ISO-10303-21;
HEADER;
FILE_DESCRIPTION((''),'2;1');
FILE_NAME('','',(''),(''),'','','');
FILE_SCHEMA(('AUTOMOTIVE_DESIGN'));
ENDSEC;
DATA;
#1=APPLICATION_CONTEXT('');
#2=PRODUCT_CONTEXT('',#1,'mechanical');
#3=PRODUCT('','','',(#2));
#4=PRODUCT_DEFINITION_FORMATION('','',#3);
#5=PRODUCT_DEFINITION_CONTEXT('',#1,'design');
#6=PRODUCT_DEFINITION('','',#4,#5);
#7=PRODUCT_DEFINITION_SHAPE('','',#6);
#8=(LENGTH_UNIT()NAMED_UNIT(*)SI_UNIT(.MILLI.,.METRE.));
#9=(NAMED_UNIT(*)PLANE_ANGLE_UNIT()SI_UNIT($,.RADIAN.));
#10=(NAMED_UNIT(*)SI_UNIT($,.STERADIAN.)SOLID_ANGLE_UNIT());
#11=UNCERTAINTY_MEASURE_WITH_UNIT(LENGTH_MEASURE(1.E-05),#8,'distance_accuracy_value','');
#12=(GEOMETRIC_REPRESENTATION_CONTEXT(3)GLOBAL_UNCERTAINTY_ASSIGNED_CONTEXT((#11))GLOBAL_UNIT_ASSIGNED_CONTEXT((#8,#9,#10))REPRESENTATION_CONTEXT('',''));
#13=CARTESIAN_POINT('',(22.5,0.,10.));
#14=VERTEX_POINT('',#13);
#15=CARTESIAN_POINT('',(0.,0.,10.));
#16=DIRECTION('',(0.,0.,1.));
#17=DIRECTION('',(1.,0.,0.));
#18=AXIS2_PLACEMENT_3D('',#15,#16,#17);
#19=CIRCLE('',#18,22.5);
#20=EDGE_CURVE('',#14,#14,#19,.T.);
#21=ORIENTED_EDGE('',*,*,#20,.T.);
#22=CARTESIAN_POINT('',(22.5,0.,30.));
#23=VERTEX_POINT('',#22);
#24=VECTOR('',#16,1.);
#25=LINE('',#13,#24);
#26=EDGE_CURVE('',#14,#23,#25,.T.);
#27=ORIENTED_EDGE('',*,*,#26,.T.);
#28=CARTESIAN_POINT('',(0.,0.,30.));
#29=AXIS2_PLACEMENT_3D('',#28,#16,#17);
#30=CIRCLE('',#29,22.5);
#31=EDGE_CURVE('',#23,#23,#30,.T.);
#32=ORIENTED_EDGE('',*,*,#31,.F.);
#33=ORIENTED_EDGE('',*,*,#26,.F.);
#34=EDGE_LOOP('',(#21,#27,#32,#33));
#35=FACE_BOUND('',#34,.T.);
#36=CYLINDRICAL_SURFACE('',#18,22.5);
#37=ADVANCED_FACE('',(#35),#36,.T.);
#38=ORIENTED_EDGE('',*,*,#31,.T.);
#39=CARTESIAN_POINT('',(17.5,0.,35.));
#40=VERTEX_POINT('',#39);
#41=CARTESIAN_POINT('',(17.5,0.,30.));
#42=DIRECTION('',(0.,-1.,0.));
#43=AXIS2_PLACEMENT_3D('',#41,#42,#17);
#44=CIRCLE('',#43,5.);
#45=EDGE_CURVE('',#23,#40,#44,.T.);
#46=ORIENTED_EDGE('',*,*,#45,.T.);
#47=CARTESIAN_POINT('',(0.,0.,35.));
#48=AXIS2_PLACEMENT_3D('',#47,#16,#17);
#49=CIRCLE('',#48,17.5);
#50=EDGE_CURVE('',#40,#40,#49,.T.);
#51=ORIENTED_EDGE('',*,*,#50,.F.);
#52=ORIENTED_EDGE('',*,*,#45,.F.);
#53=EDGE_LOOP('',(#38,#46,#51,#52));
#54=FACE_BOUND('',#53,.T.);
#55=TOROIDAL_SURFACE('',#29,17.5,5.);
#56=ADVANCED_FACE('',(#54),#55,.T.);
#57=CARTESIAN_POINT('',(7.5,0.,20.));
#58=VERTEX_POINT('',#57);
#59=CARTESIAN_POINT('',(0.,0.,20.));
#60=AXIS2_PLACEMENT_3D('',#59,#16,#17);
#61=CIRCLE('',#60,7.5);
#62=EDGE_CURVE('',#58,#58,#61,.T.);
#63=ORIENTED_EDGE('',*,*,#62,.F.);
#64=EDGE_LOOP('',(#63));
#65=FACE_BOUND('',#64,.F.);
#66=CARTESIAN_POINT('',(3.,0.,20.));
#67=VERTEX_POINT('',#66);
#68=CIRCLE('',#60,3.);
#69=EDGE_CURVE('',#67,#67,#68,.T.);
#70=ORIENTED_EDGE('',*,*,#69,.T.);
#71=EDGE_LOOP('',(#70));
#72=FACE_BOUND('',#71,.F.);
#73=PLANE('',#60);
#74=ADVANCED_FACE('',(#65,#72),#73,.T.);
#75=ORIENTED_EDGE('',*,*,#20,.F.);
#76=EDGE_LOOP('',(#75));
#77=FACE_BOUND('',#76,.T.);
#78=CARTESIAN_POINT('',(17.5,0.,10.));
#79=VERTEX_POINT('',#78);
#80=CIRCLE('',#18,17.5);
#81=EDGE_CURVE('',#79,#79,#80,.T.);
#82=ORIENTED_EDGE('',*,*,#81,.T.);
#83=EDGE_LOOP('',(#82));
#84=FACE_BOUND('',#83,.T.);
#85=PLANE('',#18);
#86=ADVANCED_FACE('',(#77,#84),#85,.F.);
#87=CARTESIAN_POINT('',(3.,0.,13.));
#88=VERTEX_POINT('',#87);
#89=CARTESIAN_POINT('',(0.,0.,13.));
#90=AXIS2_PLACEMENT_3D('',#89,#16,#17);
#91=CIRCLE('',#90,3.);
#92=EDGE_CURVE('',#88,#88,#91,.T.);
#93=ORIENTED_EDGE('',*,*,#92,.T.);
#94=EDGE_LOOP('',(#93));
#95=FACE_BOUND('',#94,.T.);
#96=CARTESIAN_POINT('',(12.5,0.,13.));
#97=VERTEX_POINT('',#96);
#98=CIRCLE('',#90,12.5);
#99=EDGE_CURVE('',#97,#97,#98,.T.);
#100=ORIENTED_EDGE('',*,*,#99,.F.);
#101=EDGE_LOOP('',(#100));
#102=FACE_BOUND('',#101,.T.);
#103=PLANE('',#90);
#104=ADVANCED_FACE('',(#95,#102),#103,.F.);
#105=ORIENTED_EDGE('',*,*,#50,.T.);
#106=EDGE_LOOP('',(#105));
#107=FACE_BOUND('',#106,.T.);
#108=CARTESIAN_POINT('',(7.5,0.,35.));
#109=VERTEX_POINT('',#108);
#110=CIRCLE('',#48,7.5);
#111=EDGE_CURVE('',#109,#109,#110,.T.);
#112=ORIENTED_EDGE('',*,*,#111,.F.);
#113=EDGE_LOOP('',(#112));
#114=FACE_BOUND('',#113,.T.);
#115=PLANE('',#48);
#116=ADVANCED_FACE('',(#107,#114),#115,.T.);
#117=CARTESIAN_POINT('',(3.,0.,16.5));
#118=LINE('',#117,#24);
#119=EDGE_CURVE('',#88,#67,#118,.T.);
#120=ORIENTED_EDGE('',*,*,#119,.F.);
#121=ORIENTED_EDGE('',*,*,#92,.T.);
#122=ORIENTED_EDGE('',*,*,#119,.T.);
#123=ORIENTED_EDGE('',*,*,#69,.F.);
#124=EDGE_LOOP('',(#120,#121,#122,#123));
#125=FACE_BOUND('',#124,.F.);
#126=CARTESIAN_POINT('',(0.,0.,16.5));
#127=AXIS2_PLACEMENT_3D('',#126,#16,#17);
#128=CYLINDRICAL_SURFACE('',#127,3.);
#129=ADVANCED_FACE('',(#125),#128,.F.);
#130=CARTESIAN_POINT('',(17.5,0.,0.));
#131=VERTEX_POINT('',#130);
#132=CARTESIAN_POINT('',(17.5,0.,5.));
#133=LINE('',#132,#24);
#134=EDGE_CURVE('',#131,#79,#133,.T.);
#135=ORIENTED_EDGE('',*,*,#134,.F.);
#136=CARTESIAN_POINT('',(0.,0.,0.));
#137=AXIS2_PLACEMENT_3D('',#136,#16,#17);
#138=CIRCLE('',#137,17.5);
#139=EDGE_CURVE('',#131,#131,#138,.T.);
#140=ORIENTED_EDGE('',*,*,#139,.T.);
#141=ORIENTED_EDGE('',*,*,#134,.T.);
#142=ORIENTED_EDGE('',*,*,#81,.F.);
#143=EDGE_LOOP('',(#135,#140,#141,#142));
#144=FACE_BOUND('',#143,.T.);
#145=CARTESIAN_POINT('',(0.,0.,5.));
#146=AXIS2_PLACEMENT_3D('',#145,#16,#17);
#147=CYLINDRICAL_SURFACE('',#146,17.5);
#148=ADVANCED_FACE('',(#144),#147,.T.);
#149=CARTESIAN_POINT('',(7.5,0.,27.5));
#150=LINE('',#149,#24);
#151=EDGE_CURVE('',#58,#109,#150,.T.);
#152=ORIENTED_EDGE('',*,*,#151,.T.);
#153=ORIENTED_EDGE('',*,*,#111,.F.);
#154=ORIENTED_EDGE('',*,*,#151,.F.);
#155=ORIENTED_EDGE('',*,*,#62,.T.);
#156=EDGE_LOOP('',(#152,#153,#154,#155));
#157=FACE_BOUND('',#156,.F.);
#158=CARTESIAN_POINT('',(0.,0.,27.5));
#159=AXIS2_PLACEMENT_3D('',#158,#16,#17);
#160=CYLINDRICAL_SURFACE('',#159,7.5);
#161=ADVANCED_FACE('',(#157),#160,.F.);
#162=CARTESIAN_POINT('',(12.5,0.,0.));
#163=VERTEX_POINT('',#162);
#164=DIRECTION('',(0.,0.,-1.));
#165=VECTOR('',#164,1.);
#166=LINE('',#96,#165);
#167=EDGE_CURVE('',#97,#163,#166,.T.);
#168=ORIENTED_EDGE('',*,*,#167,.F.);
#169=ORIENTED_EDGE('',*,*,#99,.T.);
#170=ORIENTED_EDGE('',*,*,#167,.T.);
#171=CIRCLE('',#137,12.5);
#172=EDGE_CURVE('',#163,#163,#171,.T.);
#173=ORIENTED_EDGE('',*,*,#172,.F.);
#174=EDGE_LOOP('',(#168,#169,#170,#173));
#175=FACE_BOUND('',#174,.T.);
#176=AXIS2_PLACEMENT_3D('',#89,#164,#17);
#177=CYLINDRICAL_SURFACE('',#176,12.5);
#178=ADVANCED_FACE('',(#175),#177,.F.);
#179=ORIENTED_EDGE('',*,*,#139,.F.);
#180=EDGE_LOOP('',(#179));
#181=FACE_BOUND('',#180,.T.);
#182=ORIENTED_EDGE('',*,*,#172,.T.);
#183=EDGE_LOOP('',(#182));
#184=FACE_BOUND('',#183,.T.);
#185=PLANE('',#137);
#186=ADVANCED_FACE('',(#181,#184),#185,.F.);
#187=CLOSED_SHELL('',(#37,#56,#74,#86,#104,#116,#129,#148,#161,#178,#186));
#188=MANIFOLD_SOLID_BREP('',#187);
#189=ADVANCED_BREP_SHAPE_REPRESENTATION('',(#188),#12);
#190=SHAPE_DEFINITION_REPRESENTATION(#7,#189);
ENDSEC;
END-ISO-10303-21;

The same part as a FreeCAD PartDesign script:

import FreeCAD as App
import Part
import Sketcher

V = App.Vector
Q = App.Units.Quantity


def edges_at(feature, points):
    """Names of the edges that pass closest to the given points."""
    edges = feature.Shape.Edges
    near = lambda p: min(range(len(edges)), key=lambda i: edges[i].distToShape(Part.Vertex(*p))[0])
    return sorted({f"Edge{near(p) + 1}" for p in points})


def add_polygon(sketch, points):
    """Adds a closed chain of lines whose ends are joined by coincident constraints."""
    first, n = sketch.GeometryCount, len(points)
    for a, b in zip(points, points[1:] + points[:1]):
        sketch.addGeometry(Part.LineSegment(App.Vector(*a, 0), App.Vector(*b, 0)), False)
    for i in range(n):
        sketch.addConstraint(Sketcher.Constraint("Coincident", first + i, 2, first + (i + 1) % n, 1))

doc = App.newDocument("Part")
body = doc.addObject("PartDesign::Body", "Body")

# Sketch on XZ plane
sketch1 = body.newObject("Sketcher::SketchObject", "Sketch")
sketch1.AttachmentSupport = (doc.getObject("XZ_Plane"), [""])
sketch1.MapMode = "FlatFace"
add_polygon(sketch1, [(3, 20), (3, 13), (12.5, 13), (12.5, 0), (17.5, 0), (17.5, 10), (22.5, 10), (22.5, 35), (7.5, 35), (7.5, 20)])  # lines 0-9
sketch1.addConstraint(Sketcher.Constraint("Vertical", 0))
sketch1.addConstraint(Sketcher.Constraint("Horizontal", 1))
sketch1.addConstraint(Sketcher.Constraint("Vertical", 2))
sketch1.addConstraint(Sketcher.Constraint("Horizontal", 3))
sketch1.addConstraint(Sketcher.Constraint("Vertical", 4))
sketch1.addConstraint(Sketcher.Constraint("Horizontal", 5))
sketch1.addConstraint(Sketcher.Constraint("Vertical", 6))
sketch1.addConstraint(Sketcher.Constraint("Horizontal", 7))
sketch1.addConstraint(Sketcher.Constraint("Vertical", 8))
sketch1.addConstraint(Sketcher.Constraint("Horizontal", 9))
sketch1.addConstraint(Sketcher.Constraint("PointOnObject", 2, 2, -1))
sketch1.addConstraint(Sketcher.Constraint("Equal", 3, 5))
sketch1.addConstraint(Sketcher.Constraint("Equal", 7, 8))
sketch1.addConstraint(Sketcher.Constraint("DistanceX", 3, 1, 3, 2, Q("5 mm")))
sketch1.addConstraint(Sketcher.Constraint("DistanceX", 7, 2, 7, 1, Q("15 mm")))
sketch1.addConstraint(Sketcher.Constraint("DistanceY", 0, 2, 0, 1, Q("7 mm")))
sketch1.addConstraint(Sketcher.Constraint("DistanceY", 2, 2, 2, 1, Q("13 mm")))
sketch1.addConstraint(Sketcher.Constraint("DistanceY", 4, 1, 4, 2, Q("10 mm")))
sketch1.addConstraint(Sketcher.Constraint("DistanceX", 1, 1, 1, 2, Q("9.5 mm")))
sketch1.addConstraint(Sketcher.Constraint("DistanceX", -1, 1, 0, 2, Q("3 mm")))
revolution = body.newObject("PartDesign::Revolution", "Revolution")
revolution.Profile = sketch1
revolution.ReferenceAxis = (sketch1, ["V_Axis"])
revolution.Angle = 360
doc.recompute()

fillet = body.newObject("PartDesign::Fillet", "Fillet")
fillet.Base = (revolution, edges_at(revolution, [(-22.5, 0, 35)]))
fillet.Radius = 5

doc.recompute()
